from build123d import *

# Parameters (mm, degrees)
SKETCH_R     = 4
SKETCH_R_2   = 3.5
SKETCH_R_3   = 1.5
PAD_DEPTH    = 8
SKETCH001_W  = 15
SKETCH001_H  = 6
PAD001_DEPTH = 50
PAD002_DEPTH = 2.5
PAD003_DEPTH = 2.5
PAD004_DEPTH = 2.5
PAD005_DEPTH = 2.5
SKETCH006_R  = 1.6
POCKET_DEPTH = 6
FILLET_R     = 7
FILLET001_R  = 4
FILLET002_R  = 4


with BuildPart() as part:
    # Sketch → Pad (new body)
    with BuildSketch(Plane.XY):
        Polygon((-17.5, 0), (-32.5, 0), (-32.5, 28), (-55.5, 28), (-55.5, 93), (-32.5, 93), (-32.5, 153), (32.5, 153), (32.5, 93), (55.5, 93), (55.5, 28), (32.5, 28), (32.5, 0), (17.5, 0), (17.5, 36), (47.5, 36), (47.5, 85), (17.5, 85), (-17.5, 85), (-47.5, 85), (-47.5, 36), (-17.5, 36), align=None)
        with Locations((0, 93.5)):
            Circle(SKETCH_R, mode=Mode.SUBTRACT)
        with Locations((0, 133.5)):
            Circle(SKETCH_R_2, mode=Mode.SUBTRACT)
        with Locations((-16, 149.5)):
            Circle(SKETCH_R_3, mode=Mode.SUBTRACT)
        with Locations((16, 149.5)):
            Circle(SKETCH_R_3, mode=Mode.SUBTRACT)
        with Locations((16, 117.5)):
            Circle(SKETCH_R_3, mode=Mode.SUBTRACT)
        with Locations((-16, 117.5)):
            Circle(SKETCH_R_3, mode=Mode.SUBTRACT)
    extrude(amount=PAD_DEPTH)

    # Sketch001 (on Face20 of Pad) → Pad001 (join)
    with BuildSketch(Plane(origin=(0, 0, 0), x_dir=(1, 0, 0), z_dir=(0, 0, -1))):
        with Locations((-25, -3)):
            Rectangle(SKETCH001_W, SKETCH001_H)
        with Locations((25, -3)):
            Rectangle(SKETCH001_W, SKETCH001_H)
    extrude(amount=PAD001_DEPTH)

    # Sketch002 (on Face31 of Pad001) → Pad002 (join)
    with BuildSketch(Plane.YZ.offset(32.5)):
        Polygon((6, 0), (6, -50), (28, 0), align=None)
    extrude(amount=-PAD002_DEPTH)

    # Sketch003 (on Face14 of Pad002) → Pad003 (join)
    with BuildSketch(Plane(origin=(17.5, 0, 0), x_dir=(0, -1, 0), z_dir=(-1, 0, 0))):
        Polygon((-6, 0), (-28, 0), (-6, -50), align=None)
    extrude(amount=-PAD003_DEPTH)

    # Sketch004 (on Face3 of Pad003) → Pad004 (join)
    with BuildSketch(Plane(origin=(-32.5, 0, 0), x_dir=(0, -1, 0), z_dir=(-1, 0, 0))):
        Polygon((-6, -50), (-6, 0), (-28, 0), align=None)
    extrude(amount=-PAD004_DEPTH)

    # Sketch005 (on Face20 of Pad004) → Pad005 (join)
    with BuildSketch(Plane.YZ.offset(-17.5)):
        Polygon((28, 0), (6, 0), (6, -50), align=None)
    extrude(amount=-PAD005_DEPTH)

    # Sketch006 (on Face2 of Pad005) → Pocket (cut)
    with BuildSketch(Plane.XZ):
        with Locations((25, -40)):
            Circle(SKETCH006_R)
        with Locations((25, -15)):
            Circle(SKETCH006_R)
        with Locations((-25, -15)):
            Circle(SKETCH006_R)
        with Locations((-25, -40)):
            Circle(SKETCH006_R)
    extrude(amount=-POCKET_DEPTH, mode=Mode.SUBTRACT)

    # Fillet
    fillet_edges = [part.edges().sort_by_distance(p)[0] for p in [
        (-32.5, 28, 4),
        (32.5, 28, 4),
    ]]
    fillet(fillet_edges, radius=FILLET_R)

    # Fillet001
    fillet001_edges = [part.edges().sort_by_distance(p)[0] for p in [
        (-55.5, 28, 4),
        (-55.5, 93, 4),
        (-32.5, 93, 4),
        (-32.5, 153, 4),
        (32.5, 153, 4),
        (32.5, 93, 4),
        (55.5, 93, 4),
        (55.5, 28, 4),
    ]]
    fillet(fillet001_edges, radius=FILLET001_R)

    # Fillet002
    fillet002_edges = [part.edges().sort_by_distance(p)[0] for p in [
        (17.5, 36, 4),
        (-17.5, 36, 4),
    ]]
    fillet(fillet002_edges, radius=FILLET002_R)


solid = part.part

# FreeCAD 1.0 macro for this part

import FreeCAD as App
import Part
import Sketcher

V = App.Vector


def edges_at(feature, points):
    """Names of the edges that pass closest to the given points."""
    edges = feature.Shape.Edges
    near = lambda p: min(range(len(edges)), key=lambda i: edges[i].distToShape(Part.Vertex(*p))[0])
    return sorted({f"Edge{near(p) + 1}" for p in points})

doc = App.newDocument("Part")
body = doc.addObject("PartDesign::Body", "Body")

# Sketch on XY plane
sketch1 = body.newObject("Sketcher::SketchObject", "Sketch")
sketch1.AttachmentSupport = (doc.getObject("XY_Plane"), [""])
sketch1.MapMode = "FlatFace"
sketch1.addGeometry(Part.LineSegment(V(-32.5, 0, 0), V(-17.5, 0, 0)), False)
sketch1.addGeometry(Part.LineSegment(V(-17.5, 0, 0), V(-17.5, 36, 0)), False)
sketch1.addGeometry(Part.LineSegment(V(-17.5, 36, 0), V(-47.5, 36, 0)), False)
sketch1.addGeometry(Part.LineSegment(V(-47.5, 36, 0), V(-47.5, 85, 0)), False)
sketch1.addGeometry(Part.LineSegment(V(-47.5, 85, 0), V(47.5, 85, 0)), False)
sketch1.addGeometry(Part.LineSegment(V(47.5, 85, 0), V(47.5, 36, 0)), False)
sketch1.addGeometry(Part.LineSegment(V(47.5, 36, 0), V(17.5, 36, 0)), False)
sketch1.addGeometry(Part.LineSegment(V(17.5, 36, 0), V(17.5, 0, 0)), False)
sketch1.addGeometry(Part.LineSegment(V(17.5, 0, 0), V(32.5, 0, 0)), False)
sketch1.addGeometry(Part.LineSegment(V(32.5, 0, 0), V(32.5, 28, 0)), False)
sketch1.addGeometry(Part.LineSegment(V(32.5, 28, 0), V(55.5, 28, 0)), False)
sketch1.addGeometry(Part.LineSegment(V(55.5, 28, 0), V(55.5, 93, 0)), False)
sketch1.addGeometry(Part.LineSegment(V(55.5, 93, 0), V(32.5, 93, 0)), False)
sketch1.addGeometry(Part.LineSegment(V(32.5, 93, 0), V(32.5, 153, 0)), False)
sketch1.addGeometry(Part.LineSegment(V(32.5, 153, 0), V(-32.5, 153, 0)), False)
sketch1.addGeometry(Part.LineSegment(V(-32.5, 153, 0), V(-32.5, 93, 0)), False)
sketch1.addGeometry(Part.LineSegment(V(-32.5, 93, 0), V(-55.5, 93, 0)), False)
sketch1.addGeometry(Part.LineSegment(V(-55.5, 93, 0), V(-55.5, 28, 0)), False)
sketch1.addGeometry(Part.LineSegment(V(-55.5, 28, 0), V(-32.5, 28, 0)), False)
sketch1.addGeometry(Part.LineSegment(V(-32.5, 28, 0), V(-32.5, 0, 0)), False)
sketch1.addGeometry(Part.Circle(V(16, 117.5, 0), V(0, 0, 1), 1.5), False)
sketch1.addGeometry(Part.Circle(V(0, 93.5, 0), V(0, 0, 1), 4), False)
sketch1.addGeometry(Part.Circle(V(-16, 117.5, 0), V(0, 0, 1), 1.5), False)
sketch1.addGeometry(Part.Circle(V(16, 149.5, 0), V(0, 0, 1), 1.5), False)
sketch1.addGeometry(Part.Circle(V(0, 133.5, 0), V(0, 0, 1), 3.5), False)
sketch1.addGeometry(Part.Circle(V(-16, 149.5, 0), V(0, 0, 1), 1.5), False)
sketch1.addConstraint(Sketcher.Constraint("Coincident", 0, 2, 1, 1))
sketch1.addConstraint(Sketcher.Constraint("Coincident", 1, 2, 2, 1))
sketch1.addConstraint(Sketcher.Constraint("Coincident", 2, 2, 3, 1))
sketch1.addConstraint(Sketcher.Constraint("Coincident", 3, 2, 4, 1))
sketch1.addConstraint(Sketcher.Constraint("Coincident", 4, 2, 5, 1))
sketch1.addConstraint(Sketcher.Constraint("Coincident", 5, 2, 6, 1))
sketch1.addConstraint(Sketcher.Constraint("Coincident", 6, 2, 7, 1))
sketch1.addConstraint(Sketcher.Constraint("Coincident", 7, 2, 8, 1))
sketch1.addConstraint(Sketcher.Constraint("Coincident", 8, 2, 9, 1))
sketch1.addConstraint(Sketcher.Constraint("Coincident", 9, 2, 10, 1))
sketch1.addConstraint(Sketcher.Constraint("Coincident", 10, 2, 11, 1))
sketch1.addConstraint(Sketcher.Constraint("Coincident", 11, 2, 12, 1))
sketch1.addConstraint(Sketcher.Constraint("Coincident", 12, 2, 13, 1))
sketch1.addConstraint(Sketcher.Constraint("Coincident", 13, 2, 14, 1))
sketch1.addConstraint(Sketcher.Constraint("Coincident", 14, 2, 15, 1))
sketch1.addConstraint(Sketcher.Constraint("Coincident", 15, 2, 16, 1))
sketch1.addConstraint(Sketcher.Constraint("Coincident", 16, 2, 17, 1))
sketch1.addConstraint(Sketcher.Constraint("Coincident", 17, 2, 18, 1))
sketch1.addConstraint(Sketcher.Constraint("Coincident", 18, 2, 19, 1))
sketch1.addConstraint(Sketcher.Constraint("Coincident", 19, 2, 0, 1))
sketch1.addConstraint(Sketcher.Constraint("Horizontal", 0))
sketch1.addConstraint(Sketcher.Constraint("Vertical", 1))
sketch1.addConstraint(Sketcher.Constraint("Horizontal", 2))
sketch1.addConstraint(Sketcher.Constraint("Vertical", 3))
sketch1.addConstraint(Sketcher.Constraint("Horizontal", 4))
sketch1.addConstraint(Sketcher.Constraint("Vertical", 5))
sketch1.addConstraint(Sketcher.Constraint("Horizontal", 6))
sketch1.addConstraint(Sketcher.Constraint("Vertical", 7))
sketch1.addConstraint(Sketcher.Constraint("Horizontal", 8))
sketch1.addConstraint(Sketcher.Constraint("Vertical", 9))
sketch1.addConstraint(Sketcher.Constraint("Horizontal", 10))
sketch1.addConstraint(Sketcher.Constraint("Vertical", 11))
sketch1.addConstraint(Sketcher.Constraint("Horizontal", 12))
sketch1.addConstraint(Sketcher.Constraint("Vertical", 13))
sketch1.addConstraint(Sketcher.Constraint("Horizontal", 14))
sketch1.addConstraint(Sketcher.Constraint("Vertical", 15))
sketch1.addConstraint(Sketcher.Constraint("Horizontal", 16))
sketch1.addConstraint(Sketcher.Constraint("Vertical", 17))
sketch1.addConstraint(Sketcher.Constraint("Horizontal", 18))
sketch1.addConstraint(Sketcher.Constraint("Vertical", 19))
sketch1.addConstraint(Sketcher.Constraint("Equal", 20, 22))
sketch1.addConstraint(Sketcher.Constraint("Equal", 22, 23))
sketch1.addConstraint(Sketcher.Constraint("Equal", 23, 25))
sketch1.addConstraint(Sketcher.Constraint("Symmetric", 0, 2, 7, 2, -1, 1))
sketch1.addConstraint(Sketcher.Constraint("Symmetric", 20, 3, 22, 3, -2))
sketch1.addConstraint(Sketcher.Constraint("Symmetric", 23, 3, 25, 3, -2))
sketch1.addConstraint(Sketcher.Constraint("Symmetric", 2, 2, 5, 2, -2))
sketch1.addConstraint(Sketcher.Constraint("Symmetric", 12, 2, 15, 2, -2))
sketch1.addConstraint(Sketcher.Constraint("Symmetric", 10, 2, 17, 2, -2))
sketch1.addConstraint(Sketcher.Constraint("Symmetric", 8, 2, 19, 2, -2))
sketch1.addConstraint(Sketcher.Constraint("PointOnObject", 21, 3, -2))
sketch1.addConstraint(Sketcher.Constraint("PointOnObject", 24, 3, -2))
sketch1.addConstraint(Sketcher.Constraint("Vertical", 20, 3, 23, 3))
sketch1.addConstraint(Sketcher.Constraint("Vertical", 9, 2, 12, 2))
sketch1.addConstraint(Sketcher.Constraint("Equal", 14, 11))
sketch1.addConstraint(Sketcher.Constraint("Diameter", 20, 3.0))
sketch1.addConstraint(Sketcher.Constraint("Diameter", 21, 8.0))
sketch1.addConstraint(Sketcher.Constraint("Diameter", 24, 7.0))
sketch1.addConstraint(Sketcher.Constraint("DistanceX", 0, 1, 0, 2, 15.0))
sketch1.addConstraint(Sketcher.Constraint("DistanceX", 2, 2, 2, 1, 30.0))
sketch1.addConstraint(Sketcher.Constraint("DistanceX", 4, 1, 4, 2, 95.0))
sketch1.addConstraint(Sketcher.Constraint("DistanceX", 10, 1, 10, 2, 23.0))
sketch1.addConstraint(Sketcher.Constraint("DistanceY", 1, 1, 1, 2, 36.0))
sketch1.addConstraint(Sketcher.Constraint("DistanceY", 3, 1, 3, 2, 49.0))
sketch1.addConstraint(Sketcher.Constraint("DistanceY", 9, 1, 9, 2, 28.0))
sketch1.addConstraint(Sketcher.Constraint("DistanceY", 13, 1, 13, 2, 60.0))
sketch1.addConstraint(Sketcher.Constraint("DistanceX", -1, 1, 20, 3, 16.0))
sketch1.addConstraint(Sketcher.Constraint("DistanceY", 21, 3, 20, 3, 24.0))
sketch1.addConstraint(Sketcher.Constraint("DistanceY", 20, 3, 23, 3, 32.0))
sketch1.addConstraint(Sketcher.Constraint("DistanceY", 20, 3, 24, 3, 16.0))
sketch1.addConstraint(Sketcher.Constraint("DistanceY", -1, 1, 20, 3, 117.5))
pad1 = body.newObject("PartDesign::Pad", "Pad")
pad1.Profile = sketch1
pad1.Length = 8

# Sketch on XY plane
sketch2 = body.newObject("Sketcher::SketchObject", "Sketch001")
sketch2.AttachmentSupport = (doc.getObject("XY_Plane"), [""])
sketch2.MapMode = "FlatFace"
sketch2.addGeometry(Part.LineSegment(V(-32, 0, 0), V(-32, 6, 0)), False)
sketch2.addGeometry(Part.LineSegment(V(-32, 6, 0), V(-18, 6, 0)), False)
sketch2.addGeometry(Part.LineSegment(V(-18, 6, 0), V(-18, 0, 0)), False)
sketch2.addGeometry(Part.LineSegment(V(-18, 0, 0), V(-32, 0, 0)), False)
sketch2.addGeometry(Part.LineSegment(V(18, 0, 0), V(18, 6, 0)), False)
sketch2.addGeometry(Part.LineSegment(V(18, 6, 0), V(32, 6, 0)), False)
sketch2.addGeometry(Part.LineSegment(V(32, 6, 0), V(32, 0, 0)), False)
sketch2.addGeometry(Part.LineSegment(V(32, 0, 0), V(18, 0, 0)), False)
sketch2.addConstraint(Sketcher.Constraint("Coincident", 0, 2, 1, 1))
sketch2.addConstraint(Sketcher.Constraint("Coincident", 1, 2, 2, 1))
sketch2.addConstraint(Sketcher.Constraint("Coincident", 2, 2, 3, 1))
sketch2.addConstraint(Sketcher.Constraint("Coincident", 3, 2, 0, 1))
sketch2.addConstraint(Sketcher.Constraint("Coincident", 4, 2, 5, 1))
sketch2.addConstraint(Sketcher.Constraint("Coincident", 5, 2, 6, 1))
sketch2.addConstraint(Sketcher.Constraint("Coincident", 6, 2, 7, 1))
sketch2.addConstraint(Sketcher.Constraint("Coincident", 7, 2, 4, 1))
sketch2.addConstraint(Sketcher.Constraint("Vertical", 0))
sketch2.addConstraint(Sketcher.Constraint("Horizontal", 1))
sketch2.addConstraint(Sketcher.Constraint("Vertical", 2))
sketch2.addConstraint(Sketcher.Constraint("Horizontal", 3))
sketch2.addConstraint(Sketcher.Constraint("Vertical", 4))
sketch2.addConstraint(Sketcher.Constraint("Horizontal", 5))
sketch2.addConstraint(Sketcher.Constraint("Vertical", 6))
sketch2.addConstraint(Sketcher.Constraint("Horizontal", 7))
sketch2.addConstraint(Sketcher.Constraint("Symmetric", 3, 2, 6, 2, -1, 1))
sketch2.addConstraint(Sketcher.Constraint("Symmetric", 1, 2, 4, 2, -2))
sketch2.addConstraint(Sketcher.Constraint("PointOnObject", 2, 2, -1))
sketch2.addConstraint(Sketcher.Constraint("DistanceX", 1, 1, 1, 2, 15.0))
sketch2.addConstraint(Sketcher.Constraint("DistanceY", 0, 1, 0, 2, 6.0))
sketch2.addConstraint(Sketcher.Constraint("DistanceX", 1, 2, 4, 2, 35.0))
pad2 = body.newObject("PartDesign::Pad", "Pad001")
pad2.Profile = sketch2
pad2.Length = 50
pad2.Reversed = True

# Sketch on YZ plane
sketch3 = body.newObject("Sketcher::SketchObject", "Sketch002")
sketch3.AttachmentSupport = (doc.getObject("YZ_Plane"), [""])
sketch3.MapMode = "FlatFace"
sketch3.AttachmentOffset = App.Placement(V(0, 0, 32.5), App.Rotation())
sketch3.addGeometry(Part.LineSegment(V(6, 0, 0), V(6, -50, 0)), False)
sketch3.addGeometry(Part.LineSegment(V(6, -50, 0), V(28, 0, 0)), False)
sketch3.addGeometry(Part.LineSegment(V(28, 0, 0), V(6, 0, 0)), False)
sketch3.addConstraint(Sketcher.Constraint("Coincident", 0, 2, 1, 1))
sketch3.addConstraint(Sketcher.Constraint("Coincident", 1, 2, 2, 1))
sketch3.addConstraint(Sketcher.Constraint("Coincident", 2, 2, 0, 1))
sketch3.addConstraint(Sketcher.Constraint("Vertical", 0))
sketch3.addConstraint(Sketcher.Constraint("Horizontal", 2))
sketch3.addConstraint(Sketcher.Constraint("PointOnObject", 1, 2, -1))
sketch3.addConstraint(Sketcher.Constraint("DistanceX", 2, 2, 2, 1, 22.0))
sketch3.addConstraint(Sketcher.Constraint("DistanceY", 0, 2, 0, 1, 50.0))
sketch3.addConstraint(Sketcher.Constraint("DistanceX", -1, 1, 0, 2, 6.0))
pad3 = body.newObject("PartDesign::Pad", "Pad002")
pad3.Profile = sketch3
pad3.Length = 2.5
pad3.Reversed = True

# Sketch on YZ plane
sketch4 = body.newObject("Sketcher::SketchObject", "Sketch003")
sketch4.AttachmentSupport = (doc.getObject("YZ_Plane"), [""])
sketch4.MapMode = "FlatFace"
sketch4.AttachmentOffset = App.Placement(V(0, 0, 17.5), App.Rotation())
sketch4.addGeometry(Part.LineSegment(V(6, 0, 0), V(28, 0, 0)), False)
sketch4.addGeometry(Part.LineSegment(V(28, 0, 0), V(6, -50, 0)), False)
sketch4.addGeometry(Part.LineSegment(V(6, -50, 0), V(6, 0, 0)), False)
sketch4.addConstraint(Sketcher.Constraint("Coincident", 0, 2, 1, 1))
sketch4.addConstraint(Sketcher.Constraint("Coincident", 1, 2, 2, 1))
sketch4.addConstraint(Sketcher.Constraint("Coincident", 2, 2, 0, 1))
sketch4.addConstraint(Sketcher.Constraint("Horizontal", 0))
sketch4.addConstraint(Sketcher.Constraint("Vertical", 2))
sketch4.addConstraint(Sketcher.Constraint("PointOnObject", 0, 2, -1))
sketch4.addConstraint(Sketcher.Constraint("DistanceX", 0, 1, 0, 2, 22.0))
sketch4.addConstraint(Sketcher.Constraint("DistanceY", 2, 1, 2, 2, 50.0))
sketch4.addConstraint(Sketcher.Constraint("DistanceX", -1, 1, 0, 2, 28.0))
pad4 = body.newObject("PartDesign::Pad", "Pad003")
pad4.Profile = sketch4
pad4.Length = 2.5

# Sketch on YZ plane
sketch5 = body.newObject("Sketcher::SketchObject", "Sketch004")
sketch5.AttachmentSupport = (doc.getObject("YZ_Plane"), [""])
sketch5.MapMode = "FlatFace"
sketch5.AttachmentOffset = App.Placement(V(0, 0, -32.5), App.Rotation())
sketch5.addGeometry(Part.LineSegment(V(6, -50, 0), V(6, 0, 0)), False)
sketch5.addGeometry(Part.LineSegment(V(6, 0, 0), V(28, 0, 0)), False)
sketch5.addGeometry(Part.LineSegment(V(28, 0, 0), V(6, -50, 0)), False)
sketch5.addConstraint(Sketcher.Constraint("Coincident", 0, 2, 1, 1))
sketch5.addConstraint(Sketcher.Constraint("Coincident", 1, 2, 2, 1))
sketch5.addConstraint(Sketcher.Constraint("Coincident", 2, 2, 0, 1))
sketch5.addConstraint(Sketcher.Constraint("Vertical", 0))
sketch5.addConstraint(Sketcher.Constraint("Horizontal", 1))
sketch5.addConstraint(Sketcher.Constraint("PointOnObject", 0, 2, -1))
sketch5.addConstraint(Sketcher.Constraint("DistanceX", 1, 1, 1, 2, 22.0))
sketch5.addConstraint(Sketcher.Constraint("DistanceY", 0, 1, 0, 2, 50.0))
sketch5.addConstraint(Sketcher.Constraint("DistanceX", -1, 1, 0, 2, 6.0))
pad5 = body.newObject("PartDesign::Pad", "Pad004")
pad5.Profile = sketch5
pad5.Length = 2.5

# Sketch on YZ plane
sketch6 = body.newObject("Sketcher::SketchObject", "Sketch005")
sketch6.AttachmentSupport = (doc.getObject("YZ_Plane"), [""])
sketch6.MapMode = "FlatFace"
sketch6.AttachmentOffset = App.Placement(V(0, 0, -17.5), App.Rotation())
sketch6.addGeometry(Part.LineSegment(V(28, 0, 0), V(6, 0, 0)), False)
sketch6.addGeometry(Part.LineSegment(V(6, 0, 0), V(6, -50, 0)), False)
sketch6.addGeometry(Part.LineSegment(V(6, -50, 0), V(28, 0, 0)), False)
sketch6.addConstraint(Sketcher.Constraint("Coincident", 0, 2, 1, 1))
sketch6.addConstraint(Sketcher.Constraint("Coincident", 1, 2, 2, 1))
sketch6.addConstraint(Sketcher.Constraint("Coincident", 2, 2, 0, 1))
sketch6.addConstraint(Sketcher.Constraint("Horizontal", 0))
sketch6.addConstraint(Sketcher.Constraint("Vertical", 1))
sketch6.addConstraint(Sketcher.Constraint("PointOnObject", 0, 2, -1))
sketch6.addConstraint(Sketcher.Constraint("DistanceX", 0, 2, 0, 1, 22.0))
sketch6.addConstraint(Sketcher.Constraint("DistanceY", 1, 2, 1, 1, 50.0))
sketch6.addConstraint(Sketcher.Constraint("DistanceX", -1, 1, 0, 2, 6.0))
pad6 = body.newObject("PartDesign::Pad", "Pad005")
pad6.Profile = sketch6
pad6.Length = 2.5
pad6.Reversed = True

# Sketch on XZ plane
sketch7 = body.newObject("Sketcher::SketchObject", "Sketch006")
sketch7.AttachmentSupport = (doc.getObject("XZ_Plane"), [""])
sketch7.MapMode = "FlatFace"
sketch7.addGeometry(Part.Circle(V(25, -40, 0), V(0, 0, 1), 1.6), False)
sketch7.addGeometry(Part.Circle(V(25, -15, 0), V(0, 0, 1), 1.6), False)
sketch7.addGeometry(Part.Circle(V(-25, -15, 0), V(0, 0, 1), 1.6), False)
sketch7.addGeometry(Part.Circle(V(-25, -40, 0), V(0, 0, 1), 1.6), False)
sketch7.addConstraint(Sketcher.Constraint("Equal", 0, 1))
sketch7.addConstraint(Sketcher.Constraint("Equal", 1, 2))
sketch7.addConstraint(Sketcher.Constraint("Equal", 2, 3))
sketch7.addConstraint(Sketcher.Constraint("Symmetric", 1, 3, 2, 3, -2))
sketch7.addConstraint(Sketcher.Constraint("Symmetric", 0, 3, 3, 3, -2))
sketch7.addConstraint(Sketcher.Constraint("Vertical", 0, 3, 1, 3))
sketch7.addConstraint(Sketcher.Constraint("Diameter", 0, 3.2))
sketch7.addConstraint(Sketcher.Constraint("DistanceX", -1, 1, 0, 3, 25.0))
sketch7.addConstraint(Sketcher.Constraint("DistanceY", 0, 3, -1, 1, 40.0))
sketch7.addConstraint(Sketcher.Constraint("DistanceY", 1, 3, -1, 1, 15.0))
pocket1 = body.newObject("PartDesign::Pocket", "Pocket")
pocket1.Profile = sketch7
pocket1.Length = 6
doc.recompute()

fillet = body.newObject("PartDesign::Fillet", "Fillet")
fillet.Base = (pocket1, edges_at(pocket1, [(-32.5, 28, 4), (32.5, 28, 4)]))
fillet.Radius = 7
doc.recompute()

fillet2 = body.newObject("PartDesign::Fillet", "Fillet001")
fillet2.Base = (fillet, edges_at(fillet, [
    (-55.5, 28, 4),
    (-55.5, 93, 4),
    (-32.5, 93, 4),
    (-32.5, 153, 4),
    (32.5, 153, 4),
    (32.5, 93, 4),
    (55.5, 93, 4),
    (55.5, 28, 4),
]))
fillet2.Radius = 4
doc.recompute()

fillet3 = body.newObject("PartDesign::Fillet", "Fillet002")
fillet3.Base = (fillet2, edges_at(fillet2, [(17.5, 36, 4), (-17.5, 36, 4)]))
fillet3.Radius = 4

doc.recompute()
